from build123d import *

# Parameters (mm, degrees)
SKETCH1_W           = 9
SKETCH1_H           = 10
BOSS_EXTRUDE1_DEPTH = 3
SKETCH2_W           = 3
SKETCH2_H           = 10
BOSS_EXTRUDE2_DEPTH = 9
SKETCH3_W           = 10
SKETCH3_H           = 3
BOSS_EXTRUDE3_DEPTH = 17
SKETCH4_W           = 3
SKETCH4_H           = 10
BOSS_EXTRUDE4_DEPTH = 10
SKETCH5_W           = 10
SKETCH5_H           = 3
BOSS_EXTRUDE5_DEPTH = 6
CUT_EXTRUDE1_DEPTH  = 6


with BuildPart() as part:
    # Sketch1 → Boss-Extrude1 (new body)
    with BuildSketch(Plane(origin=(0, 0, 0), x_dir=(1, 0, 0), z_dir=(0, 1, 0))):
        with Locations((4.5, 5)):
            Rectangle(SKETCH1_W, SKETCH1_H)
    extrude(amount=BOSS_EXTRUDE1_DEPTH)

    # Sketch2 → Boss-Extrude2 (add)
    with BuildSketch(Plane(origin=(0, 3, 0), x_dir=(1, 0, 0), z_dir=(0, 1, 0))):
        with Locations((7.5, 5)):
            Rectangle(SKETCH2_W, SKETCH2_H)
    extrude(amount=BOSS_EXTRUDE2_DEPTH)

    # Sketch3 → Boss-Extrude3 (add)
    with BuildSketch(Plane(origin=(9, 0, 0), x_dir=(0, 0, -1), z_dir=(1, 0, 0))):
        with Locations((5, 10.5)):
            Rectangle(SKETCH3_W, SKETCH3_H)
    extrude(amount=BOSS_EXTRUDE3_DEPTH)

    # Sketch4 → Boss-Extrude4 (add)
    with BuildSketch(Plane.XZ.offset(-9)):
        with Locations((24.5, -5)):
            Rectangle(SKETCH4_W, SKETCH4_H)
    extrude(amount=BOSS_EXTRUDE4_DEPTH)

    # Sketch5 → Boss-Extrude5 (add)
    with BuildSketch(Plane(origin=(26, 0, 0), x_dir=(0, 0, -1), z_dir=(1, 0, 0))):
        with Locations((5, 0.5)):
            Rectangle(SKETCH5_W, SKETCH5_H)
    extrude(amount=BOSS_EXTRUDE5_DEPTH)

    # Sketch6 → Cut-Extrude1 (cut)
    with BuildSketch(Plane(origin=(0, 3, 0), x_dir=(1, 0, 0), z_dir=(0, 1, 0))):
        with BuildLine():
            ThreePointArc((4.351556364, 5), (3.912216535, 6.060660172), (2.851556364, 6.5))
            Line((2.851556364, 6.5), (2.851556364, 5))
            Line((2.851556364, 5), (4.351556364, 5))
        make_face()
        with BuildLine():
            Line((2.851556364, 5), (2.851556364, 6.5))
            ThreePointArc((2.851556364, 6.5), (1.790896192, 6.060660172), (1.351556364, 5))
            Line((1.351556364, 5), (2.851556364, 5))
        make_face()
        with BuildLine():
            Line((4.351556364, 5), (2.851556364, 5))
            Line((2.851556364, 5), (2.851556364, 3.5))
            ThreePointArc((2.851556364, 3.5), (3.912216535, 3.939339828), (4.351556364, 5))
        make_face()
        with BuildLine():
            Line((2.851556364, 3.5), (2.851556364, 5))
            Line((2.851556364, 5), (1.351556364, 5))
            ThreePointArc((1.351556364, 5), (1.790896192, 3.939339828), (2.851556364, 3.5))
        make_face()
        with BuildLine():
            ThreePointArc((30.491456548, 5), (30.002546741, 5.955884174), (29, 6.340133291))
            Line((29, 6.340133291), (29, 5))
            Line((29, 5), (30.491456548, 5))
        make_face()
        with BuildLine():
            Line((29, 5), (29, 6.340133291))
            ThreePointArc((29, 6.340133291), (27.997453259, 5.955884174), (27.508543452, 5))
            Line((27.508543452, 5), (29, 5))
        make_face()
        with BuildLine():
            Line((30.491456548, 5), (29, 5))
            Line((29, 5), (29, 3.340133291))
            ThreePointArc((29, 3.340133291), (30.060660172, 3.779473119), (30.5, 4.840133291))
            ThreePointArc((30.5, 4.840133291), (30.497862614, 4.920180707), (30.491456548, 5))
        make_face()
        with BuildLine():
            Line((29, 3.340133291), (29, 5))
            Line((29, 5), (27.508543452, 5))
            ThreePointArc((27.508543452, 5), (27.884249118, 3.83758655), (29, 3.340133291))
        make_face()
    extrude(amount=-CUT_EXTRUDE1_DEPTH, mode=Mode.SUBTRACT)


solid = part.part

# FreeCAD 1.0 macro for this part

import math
import FreeCAD as App
import Part
import Sketcher

V = App.Vector
Q = App.Units.Quantity


def add_polygon(sketch, points):
    """Adds a closed chain of lines whose ends are joined by coincident constraints."""
    first, n = sketch.GeometryCount, len(points)
    for a, b in zip(points, points[1:] + points[:1]):
        sketch.addGeometry(Part.LineSegment(App.Vector(*a, 0), App.Vector(*b, 0)), False)
    for i in range(n):
        sketch.addConstraint(Sketcher.Constraint("Coincident", first + i, 2, first + (i + 1) % n, 1))

doc = App.newDocument("Part")
body = doc.addObject("PartDesign::Body", "Body")

sketch1 = body.newObject("Sketcher::SketchObject", "Sketch")
sketch1.AttachmentSupport = (doc.getObject("XZ_Plane"), [""])
sketch1.MapMode = "FlatFace"
add_polygon(sketch1, [(0, -10), (0, 0), (9, 0), (9, -10)])
sketch1.addConstraint(Sketcher.Constraint("Vertical", 0))
sketch1.addConstraint(Sketcher.Constraint("Horizontal", 1))
sketch1.addConstraint(Sketcher.Constraint("Vertical", 2))
sketch1.addConstraint(Sketcher.Constraint("Horizontal", 3))
sketch1.addConstraint(Sketcher.Constraint("Coincident", 0, 2, -1, 1))
sketch1.addConstraint(Sketcher.Constraint("DistanceX", 1, 1, 1, 2, Q("9 mm")))
sketch1.addConstraint(Sketcher.Constraint("DistanceY", 0, 1, 0, 2, Q("10 mm")))
pad1 = body.newObject("PartDesign::Pad", "Pad")
pad1.Profile = sketch1
pad1.Length = 3
pad1.Reversed = True

sketch2 = body.newObject("Sketcher::SketchObject", "Sketch001")
sketch2.AttachmentSupport = (doc.getObject("XZ_Plane"), [""])
sketch2.MapMode = "FlatFace"
sketch2.AttachmentOffset = App.Placement(V(0, 0, -3), App.Rotation())
add_polygon(sketch2, [(6, -10), (6, 0), (9, 0), (9, -10)])
sketch2.addConstraint(Sketcher.Constraint("Vertical", 0))
sketch2.addConstraint(Sketcher.Constraint("Horizontal", 1))
sketch2.addConstraint(Sketcher.Constraint("Vertical", 2))
sketch2.addConstraint(Sketcher.Constraint("Horizontal", 3))
sketch2.addConstraint(Sketcher.Constraint("PointOnObject", 0, 2, -1))
sketch2.addConstraint(Sketcher.Constraint("DistanceX", 1, 1, 1, 2, Q("3 mm")))
sketch2.addConstraint(Sketcher.Constraint("DistanceY", 0, 1, 0, 2, Q("10 mm")))
sketch2.addConstraint(Sketcher.Constraint("DistanceX", -1, 1, 0, 2, Q("6 mm")))
pad2 = body.newObject("PartDesign::Pad", "Pad001")
pad2.Profile = sketch2
pad2.Length = 9
pad2.Reversed = True

sketch3 = body.newObject("Sketcher::SketchObject", "Sketch002")
sketch3.AttachmentSupport = (doc.getObject("YZ_Plane"), [""])
sketch3.MapMode = "FlatFace"
sketch3.AttachmentOffset = App.Placement(V(0, 0, 9), App.Rotation())
add_polygon(sketch3, [(12, 0), (9, 0), (9, -10), (12, -10)])
sketch3.addConstraint(Sketcher.Constraint("Horizontal", 0))
sketch3.addConstraint(Sketcher.Constraint("Vertical", 1))
sketch3.addConstraint(Sketcher.Constraint("Horizontal", 2))
sketch3.addConstraint(Sketcher.Constraint("Vertical", 3))
sketch3.addConstraint(Sketcher.Constraint("PointOnObject", 0, 2, -1))
sketch3.addConstraint(Sketcher.Constraint("DistanceX", 0, 2, 0, 1, Q("3 mm")))
sketch3.addConstraint(Sketcher.Constraint("DistanceY", 1, 2, 1, 1, Q("10 mm")))
sketch3.addConstraint(Sketcher.Constraint("DistanceX", -1, 1, 0, 2, Q("9 mm")))
pad3 = body.newObject("PartDesign::Pad", "Pad002")
pad3.Profile = sketch3
pad3.Length = 17

sketch4 = body.newObject("Sketcher::SketchObject", "Sketch003")
sketch4.AttachmentSupport = (doc.getObject("XZ_Plane"), [""])
sketch4.MapMode = "FlatFace"
sketch4.AttachmentOffset = App.Placement(V(0, 0, -9), App.Rotation())
add_polygon(sketch4, [(23, 0), (23, -10), (26, -10), (26, 0)])
sketch4.addConstraint(Sketcher.Constraint("Vertical", 0))
sketch4.addConstraint(Sketcher.Constraint("Horizontal", 1))
sketch4.addConstraint(Sketcher.Constraint("Vertical", 2))
sketch4.addConstraint(Sketcher.Constraint("Horizontal", 3))
sketch4.addConstraint(Sketcher.Constraint("PointOnObject", 2, 2, -1))
sketch4.addConstraint(Sketcher.Constraint("DistanceX", 1, 1, 1, 2, Q("3 mm")))
sketch4.addConstraint(Sketcher.Constraint("DistanceY", 0, 2, 0, 1, Q("10 mm")))
sketch4.addConstraint(Sketcher.Constraint("DistanceX", -1, 1, 0, 2, Q("23 mm")))
pad4 = body.newObject("PartDesign::Pad", "Pad003")
pad4.Profile = sketch4
pad4.Length = 10

sketch5 = body.newObject("Sketcher::SketchObject", "Sketch004")
sketch5.AttachmentSupport = (doc.getObject("YZ_Plane"), [""])
sketch5.MapMode = "FlatFace"
sketch5.AttachmentOffset = App.Placement(V(0, 0, 26), App.Rotation())
add_polygon(sketch5, [(2, 0), (-1, 0), (-1, -10), (2, -10)])
sketch5.addConstraint(Sketcher.Constraint("Horizontal", 0))
sketch5.addConstraint(Sketcher.Constraint("Vertical", 1))
sketch5.addConstraint(Sketcher.Constraint("Horizontal", 2))
sketch5.addConstraint(Sketcher.Constraint("Vertical", 3))
sketch5.addConstraint(Sketcher.Constraint("PointOnObject", 0, 2, -1))
sketch5.addConstraint(Sketcher.Constraint("DistanceX", 0, 2, 0, 1, Q("3 mm")))
sketch5.addConstraint(Sketcher.Constraint("DistanceY", 1, 2, 1, 1, Q("10 mm")))
sketch5.addConstraint(Sketcher.Constraint("DistanceX", 0, 2, -1, 1, Q("1 mm")))
pad5 = body.newObject("PartDesign::Pad", "Pad004")
pad5.Profile = sketch5
pad5.Length = 6

sketch6 = body.newObject("Sketcher::SketchObject", "Sketch005")
sketch6.AttachmentSupport = (doc.getObject("XZ_Plane"), [""])
sketch6.MapMode = "FlatFace"
sketch6.AttachmentOffset = App.Placement(V(0, 0, -3), App.Rotation())
sketch6.addGeometry(Part.ArcOfCircle(Part.Circle(V(2.85, -5, 0), V(0, 0, 1), 1.5), math.radians(180), math.radians(270)), False)
sketch6.addGeometry(Part.ArcOfCircle(Part.Circle(V(2.85, -5, 0), V(0, 0, 1), 1.5), math.radians(90), math.radians(180)), False)
sketch6.addGeometry(Part.ArcOfCircle(Part.Circle(V(2.85, -5, 0), V(0, 0, 1), 1.5), math.radians(0), math.radians(90)), False)
sketch6.addGeometry(Part.ArcOfCircle(Part.Circle(V(2.85, -5, 0), V(0, 0, 1), 1.5), math.radians(-90), math.radians(0)), False)
sketch6.addGeometry(Part.ArcOfCircle(Part.Circle(V(29, -4.84, 0), V(0, 0, 1), 1.5), math.radians(90), math.radians(186)), False)
sketch6.addGeometry(Part.ArcOfCircle(Part.Circle(V(29, -4.84, 0), V(0, 0, 1), 1.5), math.radians(0), math.radians(90)), False)
sketch6.addGeometry(Part.ArcOfCircle(Part.Circle(V(29, -4.84, 0), V(0, 0, 1), 1.5), math.radians(-6.12), math.radians(0)), False)
sketch6.addGeometry(Part.ArcOfCircle(Part.Circle(V(29, -4.84, 0), V(0, 0, 1), 1.5), math.radians(-90), math.radians(-6)), False)
sketch6.addGeometry(Part.ArcOfCircle(Part.Circle(V(29, -4.84, 0), V(0, 0, 1), 1.5), math.radians(-174), math.radians(-90)), False)
sketch6.addConstraint(Sketcher.Constraint("Tangent", 0, 1, 1, 2))
sketch6.addConstraint(Sketcher.Constraint("Tangent", 1, 1, 2, 2))
sketch6.addConstraint(Sketcher.Constraint("Tangent", 2, 1, 3, 2))
sketch6.addConstraint(Sketcher.Constraint("Tangent", 3, 1, 0, 2))
sketch6.addConstraint(Sketcher.Constraint("Tangent", 4, 1, 5, 2))
sketch6.addConstraint(Sketcher.Constraint("Tangent", 5, 1, 6, 2))
sketch6.addConstraint(Sketcher.Constraint("Tangent", 6, 1, 7, 2))
sketch6.addConstraint(Sketcher.Constraint("Tangent", 7, 1, 8, 2))
sketch6.addConstraint(Sketcher.Constraint("Tangent", 8, 1, 4, 2))
sketch6.addConstraint(Sketcher.Constraint("Coincident", 6, 3, 4, 3))
sketch6.addConstraint(Sketcher.Constraint("Equal", 0, 1))
sketch6.addConstraint(Sketcher.Constraint("Equal", 3, 4))
sketch6.addConstraint(Sketcher.Constraint("Horizontal", 3, 3, 0, 1))
sketch6.addConstraint(Sketcher.Constraint("Horizontal", 0, 1, 2, 1))
sketch6.addConstraint(Sketcher.Constraint("Horizontal", 8, 3, 5, 1))
sketch6.addConstraint(Sketcher.Constraint("Horizontal", 2, 1, 6, 1))
sketch6.addConstraint(Sketcher.Constraint("Horizontal", 6, 1, 8, 1))
sketch6.addConstraint(Sketcher.Constraint("Vertical", 3, 3, 1, 1))
sketch6.addConstraint(Sketcher.Constraint("Vertical", 1, 1, 3, 1))
sketch6.addConstraint(Sketcher.Constraint("Vertical", 8, 3, 4, 1))
sketch6.addConstraint(Sketcher.Constraint("Vertical", 4, 1, 7, 1))
sketch6.addConstraint(Sketcher.Constraint("Radius", 0, Q("1.5 mm")))
sketch6.addConstraint(Sketcher.Constraint("DistanceY", 0, 3, -1, 1, Q("5 mm")))
sketch6.addConstraint(Sketcher.Constraint("DistanceX", -1, 1, 4, 3, Q("29 mm")))
sketch6.addConstraint(Sketcher.Constraint("DistanceX", -1, 1, 0, 3, Q("2.851556 mm")))
sketch6.addConstraint(Sketcher.Constraint("DistanceY", 4, 3, -1, 1, Q("4.840133 mm")))
pocket1 = body.newObject("PartDesign::Pocket", "Pocket")
pocket1.Profile = sketch6
pocket1.Length = 6
pocket1.Reversed = True

doc.recompute()
